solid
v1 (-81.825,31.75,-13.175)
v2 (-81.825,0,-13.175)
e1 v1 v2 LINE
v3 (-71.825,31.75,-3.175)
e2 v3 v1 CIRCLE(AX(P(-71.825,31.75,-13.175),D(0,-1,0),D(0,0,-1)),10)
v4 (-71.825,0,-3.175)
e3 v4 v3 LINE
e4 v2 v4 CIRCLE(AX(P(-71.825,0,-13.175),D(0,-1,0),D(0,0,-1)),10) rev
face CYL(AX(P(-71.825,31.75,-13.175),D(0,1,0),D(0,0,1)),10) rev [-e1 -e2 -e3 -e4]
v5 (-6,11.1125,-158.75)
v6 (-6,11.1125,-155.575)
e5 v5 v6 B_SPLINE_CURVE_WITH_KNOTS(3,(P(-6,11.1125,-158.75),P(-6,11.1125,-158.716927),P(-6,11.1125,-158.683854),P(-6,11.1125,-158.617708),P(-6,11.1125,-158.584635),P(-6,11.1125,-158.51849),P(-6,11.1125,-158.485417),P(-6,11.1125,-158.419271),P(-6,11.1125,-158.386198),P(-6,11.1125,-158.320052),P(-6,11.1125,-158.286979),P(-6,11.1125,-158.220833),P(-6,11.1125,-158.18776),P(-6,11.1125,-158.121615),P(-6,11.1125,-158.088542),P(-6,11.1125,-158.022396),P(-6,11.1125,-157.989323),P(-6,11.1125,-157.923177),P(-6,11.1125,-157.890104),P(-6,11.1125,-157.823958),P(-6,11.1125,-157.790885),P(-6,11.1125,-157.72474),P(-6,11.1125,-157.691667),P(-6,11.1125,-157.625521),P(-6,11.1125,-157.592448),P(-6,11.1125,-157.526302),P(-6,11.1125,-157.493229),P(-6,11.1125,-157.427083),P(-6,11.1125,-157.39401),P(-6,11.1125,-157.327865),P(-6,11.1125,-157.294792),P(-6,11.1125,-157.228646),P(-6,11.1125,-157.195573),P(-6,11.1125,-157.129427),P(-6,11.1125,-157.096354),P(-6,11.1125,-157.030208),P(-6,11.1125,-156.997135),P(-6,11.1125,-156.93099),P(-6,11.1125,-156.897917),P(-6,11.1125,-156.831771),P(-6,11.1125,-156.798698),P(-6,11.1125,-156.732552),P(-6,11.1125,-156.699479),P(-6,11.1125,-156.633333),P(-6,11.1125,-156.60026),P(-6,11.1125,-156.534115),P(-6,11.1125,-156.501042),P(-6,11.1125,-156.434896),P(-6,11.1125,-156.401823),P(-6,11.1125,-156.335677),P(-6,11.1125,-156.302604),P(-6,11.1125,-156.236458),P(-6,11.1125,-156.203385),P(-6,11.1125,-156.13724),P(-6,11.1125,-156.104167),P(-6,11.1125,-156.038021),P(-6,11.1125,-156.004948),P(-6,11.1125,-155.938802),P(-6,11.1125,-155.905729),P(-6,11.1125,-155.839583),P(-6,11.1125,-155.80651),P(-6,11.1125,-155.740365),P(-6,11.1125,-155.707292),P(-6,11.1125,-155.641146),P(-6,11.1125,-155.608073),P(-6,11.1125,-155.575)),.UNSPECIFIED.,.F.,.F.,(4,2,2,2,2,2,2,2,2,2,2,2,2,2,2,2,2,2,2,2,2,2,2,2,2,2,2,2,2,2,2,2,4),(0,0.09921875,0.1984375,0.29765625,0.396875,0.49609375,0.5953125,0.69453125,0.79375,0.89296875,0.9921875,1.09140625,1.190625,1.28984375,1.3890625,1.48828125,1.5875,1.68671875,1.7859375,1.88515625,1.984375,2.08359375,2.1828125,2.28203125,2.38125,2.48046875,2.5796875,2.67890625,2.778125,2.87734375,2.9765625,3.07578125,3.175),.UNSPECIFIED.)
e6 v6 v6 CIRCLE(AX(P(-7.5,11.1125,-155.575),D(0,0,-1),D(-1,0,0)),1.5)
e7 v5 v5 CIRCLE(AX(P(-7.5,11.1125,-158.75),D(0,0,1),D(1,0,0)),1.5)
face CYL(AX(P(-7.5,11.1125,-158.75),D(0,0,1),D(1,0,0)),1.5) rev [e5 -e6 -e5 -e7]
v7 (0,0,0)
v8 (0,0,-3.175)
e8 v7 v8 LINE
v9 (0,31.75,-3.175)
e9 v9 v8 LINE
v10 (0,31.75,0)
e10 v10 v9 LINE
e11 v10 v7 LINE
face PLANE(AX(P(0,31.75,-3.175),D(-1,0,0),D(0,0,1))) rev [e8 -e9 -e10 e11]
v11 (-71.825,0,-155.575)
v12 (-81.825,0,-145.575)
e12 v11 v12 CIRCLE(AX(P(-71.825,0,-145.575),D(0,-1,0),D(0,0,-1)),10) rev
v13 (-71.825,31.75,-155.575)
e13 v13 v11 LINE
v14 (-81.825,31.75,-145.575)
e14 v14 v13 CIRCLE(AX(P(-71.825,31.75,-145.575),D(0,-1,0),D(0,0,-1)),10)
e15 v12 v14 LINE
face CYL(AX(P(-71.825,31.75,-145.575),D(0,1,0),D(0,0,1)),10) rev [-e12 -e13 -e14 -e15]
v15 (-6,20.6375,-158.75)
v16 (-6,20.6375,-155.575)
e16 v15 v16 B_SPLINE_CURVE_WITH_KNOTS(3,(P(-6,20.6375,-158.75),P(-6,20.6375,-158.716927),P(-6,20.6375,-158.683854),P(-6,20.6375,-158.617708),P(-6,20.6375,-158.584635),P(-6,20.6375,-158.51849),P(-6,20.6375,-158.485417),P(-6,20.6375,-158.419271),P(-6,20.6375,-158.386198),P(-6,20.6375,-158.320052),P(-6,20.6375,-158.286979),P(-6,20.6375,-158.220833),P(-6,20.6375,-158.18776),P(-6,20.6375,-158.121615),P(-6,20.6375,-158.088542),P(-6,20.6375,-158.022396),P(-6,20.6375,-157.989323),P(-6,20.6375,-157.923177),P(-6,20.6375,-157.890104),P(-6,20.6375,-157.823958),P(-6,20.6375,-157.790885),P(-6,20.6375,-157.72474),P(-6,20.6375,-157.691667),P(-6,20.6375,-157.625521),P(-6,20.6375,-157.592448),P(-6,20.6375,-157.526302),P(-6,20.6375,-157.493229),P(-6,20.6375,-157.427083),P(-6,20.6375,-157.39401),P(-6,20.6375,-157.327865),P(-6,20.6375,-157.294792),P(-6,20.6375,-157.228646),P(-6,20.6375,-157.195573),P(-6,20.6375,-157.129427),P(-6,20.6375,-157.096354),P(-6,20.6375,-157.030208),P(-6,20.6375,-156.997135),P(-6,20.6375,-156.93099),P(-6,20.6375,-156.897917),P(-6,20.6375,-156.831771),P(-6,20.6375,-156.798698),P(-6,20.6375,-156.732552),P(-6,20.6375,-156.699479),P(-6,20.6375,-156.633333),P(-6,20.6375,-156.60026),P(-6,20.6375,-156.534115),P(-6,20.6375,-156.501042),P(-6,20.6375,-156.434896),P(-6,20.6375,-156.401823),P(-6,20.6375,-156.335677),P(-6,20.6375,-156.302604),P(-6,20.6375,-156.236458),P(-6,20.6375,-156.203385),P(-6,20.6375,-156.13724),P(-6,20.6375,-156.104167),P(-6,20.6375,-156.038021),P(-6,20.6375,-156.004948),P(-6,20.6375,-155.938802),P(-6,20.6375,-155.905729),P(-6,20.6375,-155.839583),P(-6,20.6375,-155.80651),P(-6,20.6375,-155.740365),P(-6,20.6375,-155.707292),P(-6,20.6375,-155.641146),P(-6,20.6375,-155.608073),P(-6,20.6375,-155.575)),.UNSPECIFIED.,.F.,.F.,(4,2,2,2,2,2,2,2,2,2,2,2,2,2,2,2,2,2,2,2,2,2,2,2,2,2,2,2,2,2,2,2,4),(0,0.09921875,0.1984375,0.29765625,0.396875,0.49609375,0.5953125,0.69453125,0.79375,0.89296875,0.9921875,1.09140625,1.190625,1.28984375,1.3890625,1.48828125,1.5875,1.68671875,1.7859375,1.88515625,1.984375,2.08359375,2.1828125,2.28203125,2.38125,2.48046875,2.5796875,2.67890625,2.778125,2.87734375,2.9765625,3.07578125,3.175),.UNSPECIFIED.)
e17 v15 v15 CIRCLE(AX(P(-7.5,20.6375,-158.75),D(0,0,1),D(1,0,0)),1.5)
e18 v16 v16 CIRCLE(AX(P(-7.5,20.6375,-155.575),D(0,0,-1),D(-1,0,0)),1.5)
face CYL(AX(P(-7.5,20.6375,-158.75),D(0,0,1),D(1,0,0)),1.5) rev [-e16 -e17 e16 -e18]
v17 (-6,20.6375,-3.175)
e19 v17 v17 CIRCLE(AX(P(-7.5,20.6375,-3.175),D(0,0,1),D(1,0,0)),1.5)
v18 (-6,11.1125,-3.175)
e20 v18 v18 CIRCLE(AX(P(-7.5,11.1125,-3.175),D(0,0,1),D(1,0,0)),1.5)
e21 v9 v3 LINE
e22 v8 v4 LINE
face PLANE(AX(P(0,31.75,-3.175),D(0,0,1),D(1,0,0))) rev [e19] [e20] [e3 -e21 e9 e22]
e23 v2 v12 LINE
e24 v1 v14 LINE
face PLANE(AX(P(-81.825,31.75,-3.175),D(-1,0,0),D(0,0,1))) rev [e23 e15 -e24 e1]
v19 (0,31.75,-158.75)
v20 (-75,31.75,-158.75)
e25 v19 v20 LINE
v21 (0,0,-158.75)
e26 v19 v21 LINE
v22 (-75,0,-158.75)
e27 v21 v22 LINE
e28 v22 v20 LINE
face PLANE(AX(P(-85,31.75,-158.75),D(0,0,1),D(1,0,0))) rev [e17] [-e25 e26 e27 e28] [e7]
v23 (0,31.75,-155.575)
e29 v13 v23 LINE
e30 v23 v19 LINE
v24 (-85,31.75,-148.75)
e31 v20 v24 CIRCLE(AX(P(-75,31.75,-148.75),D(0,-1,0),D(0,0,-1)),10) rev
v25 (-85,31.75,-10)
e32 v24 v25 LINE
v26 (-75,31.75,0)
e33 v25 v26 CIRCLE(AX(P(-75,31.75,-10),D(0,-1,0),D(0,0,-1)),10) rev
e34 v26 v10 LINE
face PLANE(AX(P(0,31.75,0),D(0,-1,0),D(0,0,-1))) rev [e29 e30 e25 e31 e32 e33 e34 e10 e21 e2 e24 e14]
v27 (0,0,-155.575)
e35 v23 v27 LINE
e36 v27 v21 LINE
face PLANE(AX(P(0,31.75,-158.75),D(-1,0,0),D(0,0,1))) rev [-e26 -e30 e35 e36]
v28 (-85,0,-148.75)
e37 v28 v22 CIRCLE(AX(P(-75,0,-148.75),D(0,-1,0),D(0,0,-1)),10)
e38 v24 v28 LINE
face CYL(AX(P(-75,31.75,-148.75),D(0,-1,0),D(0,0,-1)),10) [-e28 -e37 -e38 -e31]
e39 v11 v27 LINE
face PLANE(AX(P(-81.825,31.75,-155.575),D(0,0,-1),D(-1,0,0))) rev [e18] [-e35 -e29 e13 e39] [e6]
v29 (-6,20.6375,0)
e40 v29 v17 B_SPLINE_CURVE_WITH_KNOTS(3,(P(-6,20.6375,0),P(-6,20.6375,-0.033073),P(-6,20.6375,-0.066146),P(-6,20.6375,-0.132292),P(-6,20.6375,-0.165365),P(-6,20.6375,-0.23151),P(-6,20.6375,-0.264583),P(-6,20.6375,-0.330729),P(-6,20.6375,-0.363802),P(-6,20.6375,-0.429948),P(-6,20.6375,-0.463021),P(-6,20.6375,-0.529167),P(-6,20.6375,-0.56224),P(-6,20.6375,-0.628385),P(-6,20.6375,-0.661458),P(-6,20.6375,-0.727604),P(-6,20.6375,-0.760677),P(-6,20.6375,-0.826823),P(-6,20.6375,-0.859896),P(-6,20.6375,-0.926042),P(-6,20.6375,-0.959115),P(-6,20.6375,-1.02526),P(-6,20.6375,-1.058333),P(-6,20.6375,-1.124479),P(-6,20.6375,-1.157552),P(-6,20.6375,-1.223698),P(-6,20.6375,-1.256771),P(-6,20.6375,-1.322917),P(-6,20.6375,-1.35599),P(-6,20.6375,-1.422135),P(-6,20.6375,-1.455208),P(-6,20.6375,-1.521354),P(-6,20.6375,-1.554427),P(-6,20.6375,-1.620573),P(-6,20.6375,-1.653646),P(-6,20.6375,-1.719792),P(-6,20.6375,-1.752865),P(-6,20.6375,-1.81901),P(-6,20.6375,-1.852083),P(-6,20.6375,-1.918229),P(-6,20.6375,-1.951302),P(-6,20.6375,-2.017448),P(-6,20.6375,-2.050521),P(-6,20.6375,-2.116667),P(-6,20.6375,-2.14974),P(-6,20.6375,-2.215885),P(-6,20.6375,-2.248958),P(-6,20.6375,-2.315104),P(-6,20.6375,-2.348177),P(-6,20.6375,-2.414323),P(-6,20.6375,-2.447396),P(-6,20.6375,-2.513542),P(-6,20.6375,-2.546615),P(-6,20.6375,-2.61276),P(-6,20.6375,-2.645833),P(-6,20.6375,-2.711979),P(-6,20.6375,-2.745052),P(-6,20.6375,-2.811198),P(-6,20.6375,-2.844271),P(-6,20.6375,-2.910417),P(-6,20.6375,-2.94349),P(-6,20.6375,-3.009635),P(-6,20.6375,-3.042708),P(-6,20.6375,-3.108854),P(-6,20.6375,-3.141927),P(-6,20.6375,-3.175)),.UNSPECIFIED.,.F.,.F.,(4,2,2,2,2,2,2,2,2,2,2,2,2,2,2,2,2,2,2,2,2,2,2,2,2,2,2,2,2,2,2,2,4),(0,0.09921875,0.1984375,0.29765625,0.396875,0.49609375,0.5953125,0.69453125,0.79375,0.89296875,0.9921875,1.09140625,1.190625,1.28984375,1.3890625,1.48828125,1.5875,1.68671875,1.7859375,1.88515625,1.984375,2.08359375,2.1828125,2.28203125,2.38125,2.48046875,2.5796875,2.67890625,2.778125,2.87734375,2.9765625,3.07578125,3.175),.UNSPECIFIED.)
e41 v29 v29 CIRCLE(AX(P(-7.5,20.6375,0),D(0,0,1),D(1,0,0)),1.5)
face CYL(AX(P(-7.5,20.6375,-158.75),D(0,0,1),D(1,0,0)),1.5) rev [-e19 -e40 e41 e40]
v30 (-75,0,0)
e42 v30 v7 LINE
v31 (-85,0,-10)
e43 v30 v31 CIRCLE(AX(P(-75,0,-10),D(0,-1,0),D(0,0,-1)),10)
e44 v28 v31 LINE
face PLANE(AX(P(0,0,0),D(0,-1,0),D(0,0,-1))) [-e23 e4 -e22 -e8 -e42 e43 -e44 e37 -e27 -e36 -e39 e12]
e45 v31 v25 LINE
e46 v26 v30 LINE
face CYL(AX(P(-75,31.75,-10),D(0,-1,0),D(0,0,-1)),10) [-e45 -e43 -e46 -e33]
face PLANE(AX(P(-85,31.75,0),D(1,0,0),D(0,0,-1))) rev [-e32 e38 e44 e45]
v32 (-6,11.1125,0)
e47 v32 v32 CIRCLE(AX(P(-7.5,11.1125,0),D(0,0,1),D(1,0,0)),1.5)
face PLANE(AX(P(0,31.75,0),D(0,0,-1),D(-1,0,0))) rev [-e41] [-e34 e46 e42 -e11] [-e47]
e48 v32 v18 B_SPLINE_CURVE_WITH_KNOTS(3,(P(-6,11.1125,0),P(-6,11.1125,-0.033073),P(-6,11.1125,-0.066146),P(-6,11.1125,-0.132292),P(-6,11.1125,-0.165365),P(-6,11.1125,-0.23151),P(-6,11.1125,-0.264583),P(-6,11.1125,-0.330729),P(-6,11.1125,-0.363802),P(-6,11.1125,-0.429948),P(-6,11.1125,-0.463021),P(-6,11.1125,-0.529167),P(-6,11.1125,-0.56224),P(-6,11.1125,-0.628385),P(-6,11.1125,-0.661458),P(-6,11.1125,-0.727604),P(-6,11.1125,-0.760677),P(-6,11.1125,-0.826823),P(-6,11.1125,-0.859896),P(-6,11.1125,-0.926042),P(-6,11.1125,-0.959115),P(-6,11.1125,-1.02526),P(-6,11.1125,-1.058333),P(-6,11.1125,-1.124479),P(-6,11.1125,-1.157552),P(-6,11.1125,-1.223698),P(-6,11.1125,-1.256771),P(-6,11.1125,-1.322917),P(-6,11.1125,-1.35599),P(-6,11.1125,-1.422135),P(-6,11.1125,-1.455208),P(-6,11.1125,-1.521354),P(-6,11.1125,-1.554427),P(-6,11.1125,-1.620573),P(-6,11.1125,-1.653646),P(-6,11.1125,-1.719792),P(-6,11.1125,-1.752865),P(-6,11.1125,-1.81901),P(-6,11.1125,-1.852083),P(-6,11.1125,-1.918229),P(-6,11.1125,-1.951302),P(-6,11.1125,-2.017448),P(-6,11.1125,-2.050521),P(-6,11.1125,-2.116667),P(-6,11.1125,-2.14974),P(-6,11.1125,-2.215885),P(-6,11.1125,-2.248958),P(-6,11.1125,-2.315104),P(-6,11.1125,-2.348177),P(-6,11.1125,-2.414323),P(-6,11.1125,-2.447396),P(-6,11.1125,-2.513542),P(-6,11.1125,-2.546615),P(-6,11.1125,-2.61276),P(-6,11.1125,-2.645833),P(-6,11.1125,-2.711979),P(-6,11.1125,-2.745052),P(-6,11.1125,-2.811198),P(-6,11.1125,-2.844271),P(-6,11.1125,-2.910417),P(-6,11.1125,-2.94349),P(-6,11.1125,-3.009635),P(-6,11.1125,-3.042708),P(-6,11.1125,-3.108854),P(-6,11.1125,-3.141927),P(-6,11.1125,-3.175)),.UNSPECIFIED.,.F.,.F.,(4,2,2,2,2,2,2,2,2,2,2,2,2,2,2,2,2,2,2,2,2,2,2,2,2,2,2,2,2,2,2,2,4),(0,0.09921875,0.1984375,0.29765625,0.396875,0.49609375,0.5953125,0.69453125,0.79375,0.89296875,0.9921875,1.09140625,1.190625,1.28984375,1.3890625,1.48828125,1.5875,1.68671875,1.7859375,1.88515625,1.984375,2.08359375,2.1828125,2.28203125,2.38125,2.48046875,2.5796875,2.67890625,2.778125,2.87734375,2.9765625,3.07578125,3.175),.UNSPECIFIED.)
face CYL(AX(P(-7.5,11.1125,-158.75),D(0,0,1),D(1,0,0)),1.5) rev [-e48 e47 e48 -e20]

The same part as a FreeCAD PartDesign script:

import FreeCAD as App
import Part
import Sketcher
Q = App.Units.Quantity


def edges_at(feature, points):
    """Names of the edges that pass closest to the given points."""
    edges = feature.Shape.Edges
    near = lambda p: min(range(len(edges)), key=lambda i: edges[i].distToShape(Part.Vertex(*p))[0])
    return sorted({f"Edge{near(p) + 1}" for p in points})


def add_polygon(sketch, points):
    """Adds a closed chain of lines whose ends are joined by coincident constraints."""
    first, n = sketch.GeometryCount, len(points)
    for a, b in zip(points, points[1:] + points[:1]):
        sketch.addGeometry(Part.LineSegment(App.Vector(*a, 0), App.Vector(*b, 0)), False)
    for i in range(n):
        sketch.addConstraint(Sketcher.Constraint("Coincident", first + i, 2, first + (i + 1) % n, 1))

doc = App.newDocument("Part")
params = doc.addObject("Spreadsheet::Sheet", "Params")
for row, (alias, value) in enumerate([
    ("sketch1_height", "6 in"),
    ("sketch1_height2", "6.25 in"),
    ("pad1_length", "1.25 in"),
    ("fillet_radius", "10 mm"),
], start=1):
    params.set(f"A{row}", alias)
    params.set(f"B{row}", "=" + value)
    params.setAlias(f"B{row}", alias)

body = doc.addObject("PartDesign::Body", "Body")

sketch1 = body.newObject("Sketcher::SketchObject", "Sketch")
sketch1.AttachmentSupport = (doc.getObject("XZ_Plane"), [""])
sketch1.MapMode = "FlatFace"
add_polygon(sketch1, [(-85, 0), (0, 0), (0, -3.2), (-81.8, -3.2), (-81.8, -155.6), (0, -155.6), (0, -158.8), (-85, -158.8)])
sketch1.addConstraint([
    Sketcher.Constraint("Horizontal", 0),
    Sketcher.Constraint("Vertical", 1),
    Sketcher.Constraint("Horizontal", 2),
    Sketcher.Constraint("Vertical", 3),
    Sketcher.Constraint("Horizontal", 4),
    Sketcher.Constraint("Vertical", 5),
    Sketcher.Constraint("Horizontal", 6),
    Sketcher.Constraint("Vertical", 7),
    Sketcher.Constraint("Coincident", 0, 2, -1, 1),
    Sketcher.Constraint("PointOnObject", 4, 2, -2),
    Sketcher.Constraint("Equal", 1, 5),
    Sketcher.Constraint("DistanceY", 3, 2, 3, 1, Q("6 in")),
    Sketcher.Constraint("DistanceY", 7, 1, 7, 2, Q("6.25 in")),
    Sketcher.Constraint("DistanceX", 6, 2, 3, 2, Q("0.125 in")),
    Sketcher.Constraint("DistanceX", 0, 1, 0, 2, Q("85 mm")),
])
sketch1.setExpression("Constraints[19]", "Params.sketch1_height")
sketch1.setExpression("Constraints[20]", "Params.sketch1_height2")
pad1 = body.newObject("PartDesign::Pad", "Pad")
pad1.Profile = sketch1
pad1.setExpression("Length", "Params.pad1_length")
pad1.Reversed = True

sketch2 = body.newObject("Sketcher::SketchObject", "Sketch001")
sketch2.AttachmentSupport = (doc.getObject("XY_Plane"), [""])
sketch2.MapMode = "FlatFace"
sketch2.addGeometry([
    Part.Circle(App.Vector(-7.5, 11.1, 0), App.Vector(0, 0, 1), 1.5),
    Part.Circle(App.Vector(-7.5, 20.6, 0), App.Vector(0, 0, 1), 1.5),
], False)
sketch2.addConstraint([
    Sketcher.Constraint("Equal", 0, 1),
    Sketcher.Constraint("Vertical", 0, 3, 1, 3),
    Sketcher.Constraint("Diameter", 0, Q("3 mm")),
    Sketcher.Constraint("DistanceY", -1, 1, 0, 3, Q("0.4375 in")),
    Sketcher.Constraint("DistanceY", -1, 1, 1, 3, Q("0.8125 in")),
    Sketcher.Constraint("DistanceX", 0, 3, -1, 1, Q("7.5 mm")),
])
pocket1 = body.newObject("PartDesign::Pocket", "Pocket")
pocket1.Profile = sketch2
pocket1.Type = "ThroughAll"
doc.recompute()

fillet = body.newObject("PartDesign::Fillet", "Fillet")
fillet.Base = (pocket1, edges_at(pocket1, [
    (-85, 15.875, 0),
    (-85, 15.875, -158.75),
    (-81.825, 15.875, -155.575),
    (-81.825, 15.875, -3.175),
]))
fillet.setExpression("Radius", "Params.fillet_radius")

doc.recompute()
